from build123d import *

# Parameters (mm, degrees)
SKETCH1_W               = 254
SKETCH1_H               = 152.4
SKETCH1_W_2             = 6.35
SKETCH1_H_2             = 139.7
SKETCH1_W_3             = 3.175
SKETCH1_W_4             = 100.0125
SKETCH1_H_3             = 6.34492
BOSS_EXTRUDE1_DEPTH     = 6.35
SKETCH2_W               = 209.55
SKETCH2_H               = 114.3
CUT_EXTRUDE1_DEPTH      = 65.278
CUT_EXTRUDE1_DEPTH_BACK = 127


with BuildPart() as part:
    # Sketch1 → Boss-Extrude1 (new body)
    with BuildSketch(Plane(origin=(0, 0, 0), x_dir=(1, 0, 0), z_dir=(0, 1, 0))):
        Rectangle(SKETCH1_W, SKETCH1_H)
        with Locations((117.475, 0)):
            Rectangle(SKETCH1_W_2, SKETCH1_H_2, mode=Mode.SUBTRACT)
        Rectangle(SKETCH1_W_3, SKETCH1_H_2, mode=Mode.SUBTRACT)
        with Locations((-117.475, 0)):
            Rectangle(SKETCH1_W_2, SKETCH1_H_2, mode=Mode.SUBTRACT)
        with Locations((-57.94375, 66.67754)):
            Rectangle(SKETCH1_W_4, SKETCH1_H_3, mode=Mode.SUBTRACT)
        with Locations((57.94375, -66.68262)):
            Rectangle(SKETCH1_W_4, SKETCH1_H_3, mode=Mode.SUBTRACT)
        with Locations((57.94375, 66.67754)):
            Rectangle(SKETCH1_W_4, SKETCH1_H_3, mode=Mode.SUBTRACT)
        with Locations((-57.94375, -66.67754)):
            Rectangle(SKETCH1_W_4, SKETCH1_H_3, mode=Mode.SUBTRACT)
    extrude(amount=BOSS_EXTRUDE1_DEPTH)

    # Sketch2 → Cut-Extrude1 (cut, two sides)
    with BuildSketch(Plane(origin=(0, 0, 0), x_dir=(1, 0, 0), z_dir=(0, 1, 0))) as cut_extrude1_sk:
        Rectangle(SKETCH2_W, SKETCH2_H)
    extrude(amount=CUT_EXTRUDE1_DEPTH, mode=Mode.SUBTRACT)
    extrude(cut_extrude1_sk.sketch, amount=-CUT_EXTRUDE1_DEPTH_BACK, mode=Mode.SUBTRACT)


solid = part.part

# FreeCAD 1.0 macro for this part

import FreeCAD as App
import Part
import Sketcher

V = App.Vector
Q = App.Units.Quantity

doc = App.newDocument("Part")
body = doc.addObject("PartDesign::Body", "Body")

sketch1 = body.newObject("Sketcher::SketchObject", "Sketch")
sketch1.AttachmentSupport = (doc.getObject("XZ_Plane"), [""])
sketch1.MapMode = "FlatFace"
sketch1.addGeometry(Part.LineSegment(V(-127, -76.2, 0), V(-127, 76.2, 0)), False)
sketch1.addGeometry(Part.LineSegment(V(-127, 76.2, 0), V(127, 76.2, 0)), False)
sketch1.addGeometry(Part.LineSegment(V(127, 76.2, 0), V(127, -76.2, 0)), False)
sketch1.addGeometry(Part.LineSegment(V(127, -76.2, 0), V(-127, -76.2, 0)), False)
sketch1.addGeometry(Part.LineSegment(V(-7.9, 69.8, 0), V(-108, 69.8, 0)), False)
sketch1.addGeometry(Part.LineSegment(V(-108, 69.8, 0), V(-108, 63.5, 0)), False)
sketch1.addGeometry(Part.LineSegment(V(-108, 63.5, 0), V(-7.9, 63.5, 0)), False)
sketch1.addGeometry(Part.LineSegment(V(-7.9, 63.5, 0), V(-7.9, 69.8, 0)), False)
sketch1.addGeometry(Part.LineSegment(V(108, 69.9, 0), V(7.9, 69.9, 0)), False)
sketch1.addGeometry(Part.LineSegment(V(7.9, 69.9, 0), V(7.9, 63.5, 0)), False)
sketch1.addGeometry(Part.LineSegment(V(7.9, 63.5, 0), V(108, 63.5, 0)), False)
sketch1.addGeometry(Part.LineSegment(V(108, 63.5, 0), V(108, 69.9, 0)), False)
sketch1.addGeometry(Part.LineSegment(V(-114.3, 69.8, 0), V(-120.7, 69.8, 0)), False)
sketch1.addGeometry(Part.LineSegment(V(-120.7, 69.8, 0), V(-120.7, -69.8, 0)), False)
sketch1.addGeometry(Part.LineSegment(V(-120.7, -69.8, 0), V(-114.3, -69.8, 0)), False)
sketch1.addGeometry(Part.LineSegment(V(-114.3, -69.8, 0), V(-114.3, 69.8, 0)), False)
sketch1.addGeometry(Part.LineSegment(V(-7.9, -63.5, 0), V(-108, -63.5, 0)), False)
sketch1.addGeometry(Part.LineSegment(V(-108, -63.5, 0), V(-108, -69.8, 0)), False)
sketch1.addGeometry(Part.LineSegment(V(-108, -69.8, 0), V(-7.9, -69.8, 0)), False)
sketch1.addGeometry(Part.LineSegment(V(-7.9, -69.8, 0), V(-7.9, -63.5, 0)), False)
sketch1.addGeometry(Part.LineSegment(V(1.6, 69.8, 0), V(-1.6, 69.8, 0)), False)
sketch1.addGeometry(Part.LineSegment(V(-1.6, 69.8, 0), V(-1.6, -69.8, 0)), False)
sketch1.addGeometry(Part.LineSegment(V(-1.6, -69.8, 0), V(1.6, -69.8, 0)), False)
sketch1.addGeometry(Part.LineSegment(V(1.6, -69.8, 0), V(1.6, 69.8, 0)), False)
sketch1.addGeometry(Part.LineSegment(V(120.7, 69.8, 0), V(114.3, 69.8, 0)), False)
sketch1.addGeometry(Part.LineSegment(V(114.3, 69.8, 0), V(114.3, -69.8, 0)), False)
sketch1.addGeometry(Part.LineSegment(V(114.3, -69.8, 0), V(120.7, -69.8, 0)), False)
sketch1.addGeometry(Part.LineSegment(V(120.7, -69.8, 0), V(120.7, 69.8, 0)), False)
sketch1.addGeometry(Part.LineSegment(V(108, -63.5, 0), V(7.9, -63.5, 0)), False)
sketch1.addGeometry(Part.LineSegment(V(7.9, -63.5, 0), V(7.9, -69.8, 0)), False)
sketch1.addGeometry(Part.LineSegment(V(7.9, -69.8, 0), V(108, -69.8, 0)), False)
sketch1.addGeometry(Part.LineSegment(V(108, -69.8, 0), V(108, -63.5, 0)), False)
sketch1.addConstraint(Sketcher.Constraint("Coincident", 0, 2, 1, 1))
sketch1.addConstraint(Sketcher.Constraint("Coincident", 1, 2, 2, 1))
sketch1.addConstraint(Sketcher.Constraint("Coincident", 2, 2, 3, 1))
sketch1.addConstraint(Sketcher.Constraint("Coincident", 3, 2, 0, 1))
sketch1.addConstraint(Sketcher.Constraint("Coincident", 4, 2, 5, 1))
sketch1.addConstraint(Sketcher.Constraint("Coincident", 5, 2, 6, 1))
sketch1.addConstraint(Sketcher.Constraint("Coincident", 6, 2, 7, 1))
sketch1.addConstraint(Sketcher.Constraint("Coincident", 7, 2, 4, 1))
sketch1.addConstraint(Sketcher.Constraint("Coincident", 8, 2, 9, 1))
sketch1.addConstraint(Sketcher.Constraint("Coincident", 9, 2, 10, 1))
sketch1.addConstraint(Sketcher.Constraint("Coincident", 10, 2, 11, 1))
sketch1.addConstraint(Sketcher.Constraint("Coincident", 11, 2, 8, 1))
sketch1.addConstraint(Sketcher.Constraint("Coincident", 12, 2, 13, 1))
sketch1.addConstraint(Sketcher.Constraint("Coincident", 13, 2, 14, 1))
sketch1.addConstraint(Sketcher.Constraint("Coincident", 14, 2, 15, 1))
sketch1.addConstraint(Sketcher.Constraint("Coincident", 15, 2, 12, 1))
sketch1.addConstraint(Sketcher.Constraint("Coincident", 16, 2, 17, 1))
sketch1.addConstraint(Sketcher.Constraint("Coincident", 17, 2, 18, 1))
sketch1.addConstraint(Sketcher.Constraint("Coincident", 18, 2, 19, 1))
sketch1.addConstraint(Sketcher.Constraint("Coincident", 19, 2, 16, 1))
sketch1.addConstraint(Sketcher.Constraint("Coincident", 20, 2, 21, 1))
sketch1.addConstraint(Sketcher.Constraint("Coincident", 21, 2, 22, 1))
sketch1.addConstraint(Sketcher.Constraint("Coincident", 22, 2, 23, 1))
sketch1.addConstraint(Sketcher.Constraint("Coincident", 23, 2, 20, 1))
sketch1.addConstraint(Sketcher.Constraint("Coincident", 24, 2, 25, 1))
sketch1.addConstraint(Sketcher.Constraint("Coincident", 25, 2, 26, 1))
sketch1.addConstraint(Sketcher.Constraint("Coincident", 26, 2, 27, 1))
sketch1.addConstraint(Sketcher.Constraint("Coincident", 27, 2, 24, 1))
sketch1.addConstraint(Sketcher.Constraint("Coincident", 28, 2, 29, 1))
sketch1.addConstraint(Sketcher.Constraint("Coincident", 29, 2, 30, 1))
sketch1.addConstraint(Sketcher.Constraint("Coincident", 30, 2, 31, 1))
sketch1.addConstraint(Sketcher.Constraint("Coincident", 31, 2, 28, 1))
sketch1.addConstraint(Sketcher.Constraint("Vertical", 0))
sketch1.addConstraint(Sketcher.Constraint("Horizontal", 1))
sketch1.addConstraint(Sketcher.Constraint("Vertical", 2))
sketch1.addConstraint(Sketcher.Constraint("Horizontal", 3))
sketch1.addConstraint(Sketcher.Constraint("Horizontal", 4))
sketch1.addConstraint(Sketcher.Constraint("Vertical", 5))
sketch1.addConstraint(Sketcher.Constraint("Horizontal", 6))
sketch1.addConstraint(Sketcher.Constraint("Vertical", 7))
sketch1.addConstraint(Sketcher.Constraint("Horizontal", 8))
sketch1.addConstraint(Sketcher.Constraint("Vertical", 9))
sketch1.addConstraint(Sketcher.Constraint("Horizontal", 10))
sketch1.addConstraint(Sketcher.Constraint("Vertical", 11))
sketch1.addConstraint(Sketcher.Constraint("Horizontal", 12))
sketch1.addConstraint(Sketcher.Constraint("Vertical", 13))
sketch1.addConstraint(Sketcher.Constraint("Horizontal", 14))
sketch1.addConstraint(Sketcher.Constraint("Vertical", 15))
sketch1.addConstraint(Sketcher.Constraint("Horizontal", 16))
sketch1.addConstraint(Sketcher.Constraint("Vertical", 17))
sketch1.addConstraint(Sketcher.Constraint("Horizontal", 18))
sketch1.addConstraint(Sketcher.Constraint("Vertical", 19))
sketch1.addConstraint(Sketcher.Constraint("Horizontal", 20))
sketch1.addConstraint(Sketcher.Constraint("Vertical", 21))
sketch1.addConstraint(Sketcher.Constraint("Horizontal", 22))
sketch1.addConstraint(Sketcher.Constraint("Vertical", 23))
sketch1.addConstraint(Sketcher.Constraint("Horizontal", 24))
sketch1.addConstraint(Sketcher.Constraint("Vertical", 25))
sketch1.addConstraint(Sketcher.Constraint("Horizontal", 26))
sketch1.addConstraint(Sketcher.Constraint("Vertical", 27))
sketch1.addConstraint(Sketcher.Constraint("Horizontal", 28))
sketch1.addConstraint(Sketcher.Constraint("Vertical", 29))
sketch1.addConstraint(Sketcher.Constraint("Horizontal", 30))
sketch1.addConstraint(Sketcher.Constraint("Vertical", 31))
sketch1.addConstraint(Sketcher.Constraint("Symmetric", 0, 2, 2, 2, -1, 1))
sketch1.addConstraint(Sketcher.Constraint("Symmetric", 20, 2, 22, 2, -1, 1))
sketch1.addConstraint(Sketcher.Constraint("Symmetric", 14, 2, 24, 2, -1, 1))
sketch1.addConstraint(Sketcher.Constraint("Symmetric", 12, 2, 26, 2, -1, 1))
sketch1.addConstraint(Sketcher.Constraint("Symmetric", 6, 2, 28, 2, -1, 1))
sketch1.addConstraint(Sketcher.Constraint("Symmetric", 4, 2, 30, 2, -1, 1))
sketch1.addConstraint(Sketcher.Constraint("Symmetric", 19, 2, 28, 2, -2))
sketch1.addConstraint(Sketcher.Constraint("Symmetric", 17, 2, 30, 2, -2))
sketch1.addConstraint(Sketcher.Constraint("Horizontal", 7, 2, 12, 2))
sketch1.addConstraint(Sketcher.Constraint("Horizontal", 14, 2, 17, 2))
sketch1.addConstraint(Sketcher.Constraint("Horizontal", 15, 2, 20, 2))
sketch1.addConstraint(Sketcher.Constraint("Vertical", 9, 2, 28, 2))
sketch1.addConstraint(Sketcher.Constraint("Vertical", 11, 2, 30, 2))
sketch1.addConstraint(Sketcher.Constraint("Equal", 7, 9))
sketch1.addConstraint(Sketcher.Constraint("DistanceX", 1, 1, 1, 2, Q("10 in")))
sketch1.addConstraint(Sketcher.Constraint("DistanceY", 0, 1, 0, 2, Q("6 in")))
sketch1.addConstraint(Sketcher.Constraint("DistanceY", 13, 2, 13, 1, Q("5.5 in")))
sketch1.addConstraint(Sketcher.Constraint("DistanceX", 12, 2, 12, 1, Q("0.25 in")))
sketch1.addConstraint(Sketcher.Constraint("DistanceX", 14, 2, -1, 1, Q("4.5 in")))
sketch1.addConstraint(Sketcher.Constraint("DistanceX", 12, 2, 4, 2, Q("0.5 in")))
sketch1.addConstraint(Sketcher.Constraint("DistanceX", 4, 2, 4, 1, Q("3.9375 in")))
sketch1.addConstraint(Sketcher.Constraint("DistanceX", 20, 2, 20, 1, Q("0.125 in")))
sketch1.addConstraint(Sketcher.Constraint("DistanceY", 6, 2, 8, 2, Q("0.25 in")))
sketch1.addConstraint(Sketcher.Constraint("DistanceY", 5, 2, 5, 1, Q("0.2498 in")))
pad1 = body.newObject("PartDesign::Pad", "Pad")
pad1.Profile = sketch1
pad1.Length = Q("0.25 in")
pad1.Reversed = True

sketch2 = body.newObject("Sketcher::SketchObject", "Sketch001")
sketch2.AttachmentSupport = (doc.getObject("XZ_Plane"), [""])
sketch2.MapMode = "FlatFace"
sketch2.addGeometry(Part.LineSegment(V(-105, -57, 0), V(-105, 57, 0)), False)
sketch2.addGeometry(Part.LineSegment(V(-105, 57, 0), V(105, 57, 0)), False)
sketch2.addGeometry(Part.LineSegment(V(105, 57, 0), V(105, -57, 0)), False)
sketch2.addGeometry(Part.LineSegment(V(105, -57, 0), V(-105, -57, 0)), False)
sketch2.addConstraint(Sketcher.Constraint("Coincident", 0, 2, 1, 1))
sketch2.addConstraint(Sketcher.Constraint("Coincident", 1, 2, 2, 1))
sketch2.addConstraint(Sketcher.Constraint("Coincident", 2, 2, 3, 1))
sketch2.addConstraint(Sketcher.Constraint("Coincident", 3, 2, 0, 1))
sketch2.addConstraint(Sketcher.Constraint("Vertical", 0))
sketch2.addConstraint(Sketcher.Constraint("Horizontal", 1))
sketch2.addConstraint(Sketcher.Constraint("Vertical", 2))
sketch2.addConstraint(Sketcher.Constraint("Horizontal", 3))
sketch2.addConstraint(Sketcher.Constraint("Symmetric", 0, 2, 2, 2, -1, 1))
sketch2.addConstraint(Sketcher.Constraint("DistanceY", 0, 1, 0, 2, Q("4.5 in")))
sketch2.addConstraint(Sketcher.Constraint("DistanceX", 1, 1, 1, 2, Q("8.25 in")))
pocket1 = body.newObject("PartDesign::Pocket", "Pocket")
pocket1.Profile = sketch2
pocket1.Type = "ThroughAll"
pocket1.Midplane = True

doc.recompute()
